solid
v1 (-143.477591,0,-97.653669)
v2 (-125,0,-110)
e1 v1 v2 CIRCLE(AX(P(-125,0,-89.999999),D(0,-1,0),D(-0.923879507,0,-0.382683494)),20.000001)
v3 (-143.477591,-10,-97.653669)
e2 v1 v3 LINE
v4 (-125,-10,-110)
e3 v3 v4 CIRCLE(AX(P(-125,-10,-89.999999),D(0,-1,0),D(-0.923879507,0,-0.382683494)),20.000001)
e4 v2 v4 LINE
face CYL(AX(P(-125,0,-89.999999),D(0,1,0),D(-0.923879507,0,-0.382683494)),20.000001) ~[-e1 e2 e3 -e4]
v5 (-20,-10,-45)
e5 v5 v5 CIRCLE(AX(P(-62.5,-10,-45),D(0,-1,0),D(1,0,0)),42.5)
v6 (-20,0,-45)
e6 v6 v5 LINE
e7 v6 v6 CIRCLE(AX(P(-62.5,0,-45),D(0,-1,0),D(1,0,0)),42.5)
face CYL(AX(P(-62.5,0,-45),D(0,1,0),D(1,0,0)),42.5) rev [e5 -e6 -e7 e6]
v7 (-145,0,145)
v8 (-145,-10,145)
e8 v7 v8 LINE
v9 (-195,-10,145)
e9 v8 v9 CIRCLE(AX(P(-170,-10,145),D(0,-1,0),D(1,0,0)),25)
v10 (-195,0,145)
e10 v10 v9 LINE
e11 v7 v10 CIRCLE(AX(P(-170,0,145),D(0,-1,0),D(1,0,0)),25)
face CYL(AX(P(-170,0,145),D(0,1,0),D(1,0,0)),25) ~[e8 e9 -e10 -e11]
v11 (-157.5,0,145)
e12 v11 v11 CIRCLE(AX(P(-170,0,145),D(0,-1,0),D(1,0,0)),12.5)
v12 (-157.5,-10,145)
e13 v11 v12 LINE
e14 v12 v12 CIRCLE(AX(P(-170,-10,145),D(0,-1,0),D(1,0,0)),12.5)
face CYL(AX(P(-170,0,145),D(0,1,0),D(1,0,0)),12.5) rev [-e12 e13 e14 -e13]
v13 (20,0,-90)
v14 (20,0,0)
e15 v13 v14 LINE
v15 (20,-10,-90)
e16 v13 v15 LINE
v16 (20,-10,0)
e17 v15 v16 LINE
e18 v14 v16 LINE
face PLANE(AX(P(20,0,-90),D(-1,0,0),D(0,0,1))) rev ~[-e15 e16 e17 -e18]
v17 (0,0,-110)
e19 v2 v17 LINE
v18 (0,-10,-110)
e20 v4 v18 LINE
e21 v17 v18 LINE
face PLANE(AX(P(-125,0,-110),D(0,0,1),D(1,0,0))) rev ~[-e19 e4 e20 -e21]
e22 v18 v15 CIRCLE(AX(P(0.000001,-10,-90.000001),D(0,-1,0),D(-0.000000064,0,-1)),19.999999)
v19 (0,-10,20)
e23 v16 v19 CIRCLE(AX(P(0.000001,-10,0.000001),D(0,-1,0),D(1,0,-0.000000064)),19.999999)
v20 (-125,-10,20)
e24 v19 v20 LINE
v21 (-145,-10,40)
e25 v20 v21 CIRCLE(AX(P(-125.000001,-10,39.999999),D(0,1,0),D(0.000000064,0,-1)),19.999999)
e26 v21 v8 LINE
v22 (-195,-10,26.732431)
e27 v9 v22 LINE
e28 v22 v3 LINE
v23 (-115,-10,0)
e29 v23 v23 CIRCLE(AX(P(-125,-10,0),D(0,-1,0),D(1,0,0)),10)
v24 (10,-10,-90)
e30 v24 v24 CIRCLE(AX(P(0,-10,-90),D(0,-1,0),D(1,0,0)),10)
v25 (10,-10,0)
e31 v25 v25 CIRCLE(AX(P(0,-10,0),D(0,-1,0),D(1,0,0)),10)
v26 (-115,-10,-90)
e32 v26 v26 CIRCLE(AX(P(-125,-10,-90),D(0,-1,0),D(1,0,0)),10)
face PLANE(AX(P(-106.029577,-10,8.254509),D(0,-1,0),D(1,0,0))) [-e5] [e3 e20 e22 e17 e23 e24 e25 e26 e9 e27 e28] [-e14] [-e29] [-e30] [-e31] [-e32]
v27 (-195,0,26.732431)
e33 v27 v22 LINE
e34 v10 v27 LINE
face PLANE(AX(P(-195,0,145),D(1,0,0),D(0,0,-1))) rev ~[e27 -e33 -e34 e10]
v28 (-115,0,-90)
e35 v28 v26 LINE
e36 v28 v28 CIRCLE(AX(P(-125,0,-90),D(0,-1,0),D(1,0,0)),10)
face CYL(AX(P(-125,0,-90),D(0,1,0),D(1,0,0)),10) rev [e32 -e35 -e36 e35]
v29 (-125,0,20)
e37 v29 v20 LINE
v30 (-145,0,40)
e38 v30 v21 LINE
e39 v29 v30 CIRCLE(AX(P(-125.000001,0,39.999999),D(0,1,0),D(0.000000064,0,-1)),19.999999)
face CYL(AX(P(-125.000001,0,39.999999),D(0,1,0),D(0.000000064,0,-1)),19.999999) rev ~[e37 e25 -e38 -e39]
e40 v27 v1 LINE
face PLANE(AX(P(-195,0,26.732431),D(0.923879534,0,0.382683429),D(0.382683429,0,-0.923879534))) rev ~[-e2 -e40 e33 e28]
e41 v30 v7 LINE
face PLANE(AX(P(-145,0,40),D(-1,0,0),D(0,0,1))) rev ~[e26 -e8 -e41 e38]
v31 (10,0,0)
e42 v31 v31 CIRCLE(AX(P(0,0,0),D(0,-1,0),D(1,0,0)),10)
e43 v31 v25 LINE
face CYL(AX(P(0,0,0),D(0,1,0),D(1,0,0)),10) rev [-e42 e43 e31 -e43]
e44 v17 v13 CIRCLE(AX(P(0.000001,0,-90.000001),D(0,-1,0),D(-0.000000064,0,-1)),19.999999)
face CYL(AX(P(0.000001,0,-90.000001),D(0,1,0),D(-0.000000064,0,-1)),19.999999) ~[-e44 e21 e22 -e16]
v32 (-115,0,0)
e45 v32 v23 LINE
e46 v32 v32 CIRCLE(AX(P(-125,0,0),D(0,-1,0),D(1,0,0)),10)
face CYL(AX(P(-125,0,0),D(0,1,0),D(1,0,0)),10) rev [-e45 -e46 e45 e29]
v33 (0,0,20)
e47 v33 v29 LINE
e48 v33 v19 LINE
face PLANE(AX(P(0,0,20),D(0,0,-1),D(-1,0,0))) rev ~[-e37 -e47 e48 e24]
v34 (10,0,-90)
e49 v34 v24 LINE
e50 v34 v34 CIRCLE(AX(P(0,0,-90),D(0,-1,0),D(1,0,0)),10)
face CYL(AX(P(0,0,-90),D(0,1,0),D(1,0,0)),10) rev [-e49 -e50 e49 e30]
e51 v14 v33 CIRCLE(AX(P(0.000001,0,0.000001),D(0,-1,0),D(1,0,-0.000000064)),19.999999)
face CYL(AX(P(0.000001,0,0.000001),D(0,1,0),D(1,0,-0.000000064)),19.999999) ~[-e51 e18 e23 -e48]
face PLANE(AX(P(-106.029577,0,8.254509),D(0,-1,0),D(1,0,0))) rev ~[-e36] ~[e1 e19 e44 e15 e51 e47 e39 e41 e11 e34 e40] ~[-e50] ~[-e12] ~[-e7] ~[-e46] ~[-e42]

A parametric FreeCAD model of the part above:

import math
import FreeCAD as App
import Part
import Sketcher
from FreeCAD import Vector
Q = App.Units.Quantity

doc = App.newDocument("Part")
body = doc.addObject("PartDesign::Body", "Body")

# Sketch on XZ plane
sketch1 = body.newObject("Sketcher::SketchObject", "Sketch")
sketch1.AttachmentSupport = (doc.getObject("XZ_Plane"), [""])
sketch1.MapMode = "FlatFace"
sketch1.addGeometry(Part.ArcOfCircle(Part.Circle(Vector(0, 0, 0), Vector(0, 0, 1), 20), math.radians(0), math.radians(90)), False)
sketch1.addGeometry(Part.LineSegment(Vector(0, 20, 0), Vector(-125, 20, 0)), False)
sketch1.addGeometry(Part.ArcOfCircle(Part.Circle(Vector(-125, 40, 0), Vector(0, 0, 1), 20), math.radians(180), math.radians(270)), False)
sketch1.addGeometry(Part.LineSegment(Vector(-145, 40, 0), Vector(-145, 145, 0)), False)
sketch1.addGeometry(Part.ArcOfCircle(Part.Circle(Vector(-170, 145, 0), Vector(0, 0, 1), 25), math.radians(0), math.radians(180)), False)
sketch1.addGeometry(Part.LineSegment(Vector(-195, 145, 0), Vector(-195, 27, 0)), False)
sketch1.addGeometry(Part.LineSegment(Vector(-195, 27, 0), Vector(-143, -98, 0)), False)
sketch1.addGeometry(Part.ArcOfCircle(Part.Circle(Vector(-125, -90, 0), Vector(0, 0, 1), 20), math.radians(-157), math.radians(-90)), False)
sketch1.addGeometry(Part.LineSegment(Vector(-125, -110, 0), Vector(0, -110, 0)), False)
sketch1.addGeometry(Part.ArcOfCircle(Part.Circle(Vector(0, -90, 0), Vector(0, 0, 1), 20), math.radians(-90), math.radians(0)), False)
sketch1.addGeometry(Part.LineSegment(Vector(20, -90, 0), Vector(20, 0, 0)), False)
sketch1.addGeometry(Part.Circle(Vector(-125, -90, 0), Vector(0, 0, 1), 10), False)
sketch1.addGeometry(Part.Circle(Vector(-125, 0, 0), Vector(0, 0, 1), 10), False)
sketch1.addGeometry(Part.Circle(Vector(-62, -45, 0), Vector(0, 0, 1), 42), False)
sketch1.addGeometry(Part.Circle(Vector(0, -90, 0), Vector(0, 0, 1), 10), False)
sketch1.addGeometry(Part.Circle(Vector(0, 0, 0), Vector(0, 0, 1), 10), False)
sketch1.addGeometry(Part.Circle(Vector(-170, 145, 0), Vector(0, 0, 1), 12), False)
sketch1.addConstraint(Sketcher.Constraint("Tangent", 0, 2, 1, 1))
sketch1.addConstraint(Sketcher.Constraint("Tangent", 1, 2, 2, 2))
sketch1.addConstraint(Sketcher.Constraint("Tangent", 2, 1, 3, 1))
sketch1.addConstraint(Sketcher.Constraint("Tangent", 3, 2, 4, 1))
sketch1.addConstraint(Sketcher.Constraint("Tangent", 4, 2, 5, 1))
sketch1.addConstraint(Sketcher.Constraint("Coincident", 5, 2, 6, 1))
sketch1.addConstraint(Sketcher.Constraint("Tangent", 6, 2, 7, 1))
sketch1.addConstraint(Sketcher.Constraint("Tangent", 7, 2, 8, 1))
sketch1.addConstraint(Sketcher.Constraint("Tangent", 8, 2, 9, 1))
sketch1.addConstraint(Sketcher.Constraint("Tangent", 9, 2, 10, 1))
sketch1.addConstraint(Sketcher.Constraint("Tangent", 10, 2, 0, 1))
sketch1.addConstraint(Sketcher.Constraint("Horizontal", 1))
sketch1.addConstraint(Sketcher.Constraint("Vertical", 3))
sketch1.addConstraint(Sketcher.Constraint("Vertical", 5))
sketch1.addConstraint(Sketcher.Constraint("Horizontal", 8))
sketch1.addConstraint(Sketcher.Constraint("Vertical", 10))
sketch1.addConstraint(Sketcher.Constraint("Coincident", 0, 3, -1, 1))
sketch1.addConstraint(Sketcher.Constraint("Coincident", 15, 3, -1, 1))
sketch1.addConstraint(Sketcher.Constraint("Coincident", 11, 3, 7, 3))
sketch1.addConstraint(Sketcher.Constraint("Coincident", 14, 3, 9, 3))
sketch1.addConstraint(Sketcher.Constraint("Coincident", 16, 3, 4, 3))
sketch1.addConstraint(Sketcher.Constraint("Equal", 0, 2))
sketch1.addConstraint(Sketcher.Constraint("Equal", 2, 9))
sketch1.addConstraint(Sketcher.Constraint("Equal", 11, 12))
sketch1.addConstraint(Sketcher.Constraint("Equal", 12, 14))
sketch1.addConstraint(Sketcher.Constraint("Equal", 14, 15))
sketch1.addConstraint(Sketcher.Constraint("PointOnObject", 12, 3, -1))
sketch1.addConstraint(Sketcher.Constraint("Horizontal", 9, 3, 11, 3))
sketch1.addConstraint(Sketcher.Constraint("Vertical", 2, 3, 7, 3))
sketch1.addConstraint(Sketcher.Constraint("Vertical", 11, 3, 12, 3))
sketch1.addConstraint(Sketcher.Constraint("Diameter", 11, Q("20 mm")))
sketch1.addConstraint(Sketcher.Constraint("Diameter", 13, Q("85 mm")))
sketch1.addConstraint(Sketcher.Constraint("Diameter", 16, Q("25 mm")))
sketch1.addConstraint(Sketcher.Constraint("Radius", 0, Q("19.999999 mm")))
sketch1.addConstraint(Sketcher.Constraint("Radius", 4, Q("25 mm")))
sketch1.addConstraint(Sketcher.Constraint("DistanceX", 1, 2, 1, 1, Q("125 mm")))
sketch1.addConstraint(Sketcher.Constraint("DistanceY", 3, 1, 3, 2, Q("105 mm")))
sketch1.addConstraint(Sketcher.Constraint("DistanceY", 10, 1, 10, 2, Q("90 mm")))
sketch1.addConstraint(Sketcher.Constraint("DistanceY", 13, 3, -1, 1, Q("45 mm")))
sketch1.addConstraint(Sketcher.Constraint("Angle", 6, Q("-67.5 deg")))
sketch1.addConstraint(Sketcher.Constraint("DistanceX", 13, 3, -1, 1, Q("62.5 mm")))
pad1 = body.newObject("PartDesign::Pad", "Pad")
pad1.Profile = sketch1
pad1.Length = 10

doc.recompute()
